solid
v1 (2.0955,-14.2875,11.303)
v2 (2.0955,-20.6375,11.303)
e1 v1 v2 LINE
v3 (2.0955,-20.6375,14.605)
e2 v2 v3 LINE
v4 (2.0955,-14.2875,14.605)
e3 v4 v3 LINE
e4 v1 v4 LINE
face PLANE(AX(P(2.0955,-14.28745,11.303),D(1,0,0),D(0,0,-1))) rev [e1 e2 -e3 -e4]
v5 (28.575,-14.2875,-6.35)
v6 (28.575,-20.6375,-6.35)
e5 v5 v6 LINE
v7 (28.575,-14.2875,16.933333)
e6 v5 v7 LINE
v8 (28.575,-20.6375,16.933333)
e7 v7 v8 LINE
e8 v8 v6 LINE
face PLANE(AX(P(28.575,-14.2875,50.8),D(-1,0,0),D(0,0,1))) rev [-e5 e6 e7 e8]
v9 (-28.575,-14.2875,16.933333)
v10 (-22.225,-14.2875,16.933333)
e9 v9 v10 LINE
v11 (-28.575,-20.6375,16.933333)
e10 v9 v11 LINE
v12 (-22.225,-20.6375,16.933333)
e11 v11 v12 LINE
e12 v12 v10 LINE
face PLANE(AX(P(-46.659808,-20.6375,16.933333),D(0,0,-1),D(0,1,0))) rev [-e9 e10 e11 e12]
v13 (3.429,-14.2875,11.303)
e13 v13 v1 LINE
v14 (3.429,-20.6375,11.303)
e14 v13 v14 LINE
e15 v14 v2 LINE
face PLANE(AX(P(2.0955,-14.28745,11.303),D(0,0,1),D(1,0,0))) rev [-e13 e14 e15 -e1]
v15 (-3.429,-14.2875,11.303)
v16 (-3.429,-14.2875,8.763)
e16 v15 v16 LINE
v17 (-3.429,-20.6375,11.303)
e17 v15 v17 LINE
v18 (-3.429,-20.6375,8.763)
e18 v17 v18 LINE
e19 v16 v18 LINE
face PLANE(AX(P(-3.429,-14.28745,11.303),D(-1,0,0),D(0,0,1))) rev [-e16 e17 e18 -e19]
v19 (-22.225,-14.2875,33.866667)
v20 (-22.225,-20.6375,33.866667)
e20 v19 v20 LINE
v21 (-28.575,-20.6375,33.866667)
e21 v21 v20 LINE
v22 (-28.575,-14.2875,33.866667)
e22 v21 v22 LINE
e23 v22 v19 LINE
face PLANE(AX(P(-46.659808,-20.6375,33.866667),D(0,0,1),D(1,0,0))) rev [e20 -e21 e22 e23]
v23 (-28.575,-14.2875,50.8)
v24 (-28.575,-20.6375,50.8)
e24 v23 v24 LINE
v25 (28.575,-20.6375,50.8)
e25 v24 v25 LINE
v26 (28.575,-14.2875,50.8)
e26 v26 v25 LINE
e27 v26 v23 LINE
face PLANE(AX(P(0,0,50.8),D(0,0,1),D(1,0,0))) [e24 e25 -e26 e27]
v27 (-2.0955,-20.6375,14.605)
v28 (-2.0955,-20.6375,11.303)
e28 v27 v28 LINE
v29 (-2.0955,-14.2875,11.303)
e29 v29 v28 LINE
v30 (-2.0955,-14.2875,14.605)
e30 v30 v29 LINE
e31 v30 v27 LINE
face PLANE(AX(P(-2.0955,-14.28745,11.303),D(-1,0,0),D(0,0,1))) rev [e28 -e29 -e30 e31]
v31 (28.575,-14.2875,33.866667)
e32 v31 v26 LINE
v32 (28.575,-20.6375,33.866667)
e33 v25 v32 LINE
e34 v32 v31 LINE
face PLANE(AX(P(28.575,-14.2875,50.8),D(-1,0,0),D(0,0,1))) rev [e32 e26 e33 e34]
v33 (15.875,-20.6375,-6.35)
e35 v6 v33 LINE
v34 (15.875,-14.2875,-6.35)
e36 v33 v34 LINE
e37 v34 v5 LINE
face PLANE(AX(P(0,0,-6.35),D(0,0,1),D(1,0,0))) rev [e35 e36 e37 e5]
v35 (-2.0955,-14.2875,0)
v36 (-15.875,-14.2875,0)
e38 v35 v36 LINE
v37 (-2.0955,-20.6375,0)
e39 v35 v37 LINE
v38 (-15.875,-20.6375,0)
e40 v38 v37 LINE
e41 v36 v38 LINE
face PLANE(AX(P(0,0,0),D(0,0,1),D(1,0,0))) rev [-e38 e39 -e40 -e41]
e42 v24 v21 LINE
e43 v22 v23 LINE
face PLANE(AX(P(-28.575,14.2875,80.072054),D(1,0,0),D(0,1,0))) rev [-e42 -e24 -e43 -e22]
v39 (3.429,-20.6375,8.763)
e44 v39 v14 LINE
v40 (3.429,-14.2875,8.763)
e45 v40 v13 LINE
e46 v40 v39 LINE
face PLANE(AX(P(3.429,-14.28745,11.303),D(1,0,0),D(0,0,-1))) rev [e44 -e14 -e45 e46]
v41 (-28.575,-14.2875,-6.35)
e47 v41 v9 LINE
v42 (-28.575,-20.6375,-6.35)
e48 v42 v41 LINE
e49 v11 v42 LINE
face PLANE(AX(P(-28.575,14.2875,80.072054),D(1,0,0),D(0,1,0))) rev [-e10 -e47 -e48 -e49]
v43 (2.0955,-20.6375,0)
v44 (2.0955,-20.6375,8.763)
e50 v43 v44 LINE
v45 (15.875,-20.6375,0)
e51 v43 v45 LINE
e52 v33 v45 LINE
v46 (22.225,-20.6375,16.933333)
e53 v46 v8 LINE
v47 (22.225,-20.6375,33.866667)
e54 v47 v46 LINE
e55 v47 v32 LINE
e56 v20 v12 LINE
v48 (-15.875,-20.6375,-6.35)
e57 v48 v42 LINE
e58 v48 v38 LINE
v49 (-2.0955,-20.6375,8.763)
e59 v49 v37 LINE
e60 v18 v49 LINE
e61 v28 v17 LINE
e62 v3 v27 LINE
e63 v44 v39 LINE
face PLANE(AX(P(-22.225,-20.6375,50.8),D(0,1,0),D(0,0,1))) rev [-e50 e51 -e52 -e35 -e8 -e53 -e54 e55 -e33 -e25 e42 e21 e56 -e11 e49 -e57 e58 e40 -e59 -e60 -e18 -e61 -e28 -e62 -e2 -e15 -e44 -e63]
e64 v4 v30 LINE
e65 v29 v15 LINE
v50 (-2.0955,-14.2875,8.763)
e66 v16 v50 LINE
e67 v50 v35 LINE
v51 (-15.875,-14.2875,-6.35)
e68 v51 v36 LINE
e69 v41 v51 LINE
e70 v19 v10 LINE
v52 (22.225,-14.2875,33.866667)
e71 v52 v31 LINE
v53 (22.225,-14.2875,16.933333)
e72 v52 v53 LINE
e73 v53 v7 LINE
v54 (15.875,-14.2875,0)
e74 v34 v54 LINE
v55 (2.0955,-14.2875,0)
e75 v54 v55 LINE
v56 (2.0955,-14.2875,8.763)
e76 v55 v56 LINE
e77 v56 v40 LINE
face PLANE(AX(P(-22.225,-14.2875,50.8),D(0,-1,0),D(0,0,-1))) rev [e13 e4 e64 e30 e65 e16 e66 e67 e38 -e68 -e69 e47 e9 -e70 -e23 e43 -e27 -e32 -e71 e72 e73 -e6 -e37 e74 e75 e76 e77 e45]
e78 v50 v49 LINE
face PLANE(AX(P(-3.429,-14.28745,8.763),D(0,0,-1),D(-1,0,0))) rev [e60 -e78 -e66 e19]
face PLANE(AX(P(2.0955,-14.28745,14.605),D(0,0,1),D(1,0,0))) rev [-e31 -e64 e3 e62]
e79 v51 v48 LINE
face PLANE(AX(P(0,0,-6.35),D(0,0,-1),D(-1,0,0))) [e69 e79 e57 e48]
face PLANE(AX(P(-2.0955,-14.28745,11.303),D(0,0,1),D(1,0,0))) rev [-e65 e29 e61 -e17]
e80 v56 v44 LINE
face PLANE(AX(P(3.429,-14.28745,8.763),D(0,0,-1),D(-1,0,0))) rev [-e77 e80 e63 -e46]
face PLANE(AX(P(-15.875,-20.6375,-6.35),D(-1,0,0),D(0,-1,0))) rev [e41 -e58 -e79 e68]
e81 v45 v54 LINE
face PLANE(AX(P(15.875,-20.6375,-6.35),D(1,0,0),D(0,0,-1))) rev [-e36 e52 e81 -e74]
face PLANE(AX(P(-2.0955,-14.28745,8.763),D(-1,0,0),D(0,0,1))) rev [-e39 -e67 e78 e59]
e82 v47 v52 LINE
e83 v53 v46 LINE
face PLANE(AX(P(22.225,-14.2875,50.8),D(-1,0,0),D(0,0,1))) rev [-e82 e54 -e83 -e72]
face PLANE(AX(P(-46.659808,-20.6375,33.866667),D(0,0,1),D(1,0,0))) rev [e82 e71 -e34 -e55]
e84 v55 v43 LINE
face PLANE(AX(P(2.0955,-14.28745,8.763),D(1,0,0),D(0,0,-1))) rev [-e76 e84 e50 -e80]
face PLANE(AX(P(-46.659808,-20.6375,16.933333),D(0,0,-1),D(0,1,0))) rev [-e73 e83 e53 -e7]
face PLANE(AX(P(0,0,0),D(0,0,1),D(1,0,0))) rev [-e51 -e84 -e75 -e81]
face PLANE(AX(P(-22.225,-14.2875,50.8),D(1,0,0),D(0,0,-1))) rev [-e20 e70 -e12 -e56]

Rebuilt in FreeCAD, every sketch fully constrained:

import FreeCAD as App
import Part
import Sketcher

V = App.Vector
Q = App.Units.Quantity

doc = App.newDocument("Part")
body = doc.addObject("PartDesign::Body", "Body")

sketch1 = body.newObject("Sketcher::SketchObject", "Sketch")
sketch1.AttachmentSupport = (doc.getObject("XY_Plane"), [""])
sketch1.MapMode = "FlatFace"
sketch1.addGeometry(Part.LineSegment(V(-22, -14, 0), V(-22, -21, 0)), False)
sketch1.addGeometry(Part.LineSegment(V(-22, -21, 0), V(22, -21, 0)), False)
sketch1.addGeometry(Part.LineSegment(V(22, -21, 0), V(22, -14, 0)), False)
sketch1.addGeometry(Part.LineSegment(V(22, -14, 0), V(-22, -14, 0)), False)
sketch1.addConstraint(Sketcher.Constraint("Coincident", 0, 2, 1, 1))
sketch1.addConstraint(Sketcher.Constraint("Coincident", 1, 2, 2, 1))
sketch1.addConstraint(Sketcher.Constraint("Coincident", 2, 2, 3, 1))
sketch1.addConstraint(Sketcher.Constraint("Coincident", 3, 2, 0, 1))
sketch1.addConstraint(Sketcher.Constraint("Vertical", 0))
sketch1.addConstraint(Sketcher.Constraint("Horizontal", 1))
sketch1.addConstraint(Sketcher.Constraint("Vertical", 2))
sketch1.addConstraint(Sketcher.Constraint("Horizontal", 3))
sketch1.addConstraint(Sketcher.Constraint("DistanceX", 1, 1, 1, 2, Q("1.75 in")))
sketch1.addConstraint(Sketcher.Constraint("DistanceY", 0, 2, 0, 1, Q("0.25 in")))
sketch1.addConstraint(Sketcher.Constraint("DistanceX", 0, 2, -1, 1, Q("0.875 in")))
sketch1.addConstraint(Sketcher.Constraint("DistanceY", 0, 2, -1, 1, Q("0.8125 in")))
pad1 = body.newObject("PartDesign::Pad", "Pad")
pad1.Profile = sketch1
pad1.Length = Q("2 in")

sketch2 = body.newObject("Sketcher::SketchObject", "Sketch001")
sketch2.AttachmentSupport = (doc.getObject("YZ_Plane"), [""])
sketch2.MapMode = "FlatFace"
sketch2.AttachmentOffset = App.Placement(V(0, 0, -0.875 * 25.4), App.Rotation())
sketch2.addGeometry(Part.LineSegment(V(-14, 34, 0), V(-21, 34, 0)), False)
sketch2.addGeometry(Part.LineSegment(V(-21, 34, 0), V(-21, 51, 0)), False)
sketch2.addGeometry(Part.LineSegment(V(-21, 51, 0), V(-14, 51, 0)), False)
sketch2.addGeometry(Part.LineSegment(V(-14, 51, 0), V(-14, 34, 0)), False)
sketch2.addGeometry(Part.LineSegment(V(-14, 0, 0), V(-21, 0, 0)), False)
sketch2.addGeometry(Part.LineSegment(V(-21, 0, 0), V(-21, 17, 0)), False)
sketch2.addGeometry(Part.LineSegment(V(-21, 17, 0), V(-14, 17, 0)), False)
sketch2.addGeometry(Part.LineSegment(V(-14, 17, 0), V(-14, 0, 0)), False)
sketch2.addConstraint(Sketcher.Constraint("Coincident", 0, 2, 1, 1))
sketch2.addConstraint(Sketcher.Constraint("Coincident", 1, 2, 2, 1))
sketch2.addConstraint(Sketcher.Constraint("Coincident", 2, 2, 3, 1))
sketch2.addConstraint(Sketcher.Constraint("Coincident", 3, 2, 0, 1))
sketch2.addConstraint(Sketcher.Constraint("Coincident", 4, 2, 5, 1))
sketch2.addConstraint(Sketcher.Constraint("Coincident", 5, 2, 6, 1))
sketch2.addConstraint(Sketcher.Constraint("Coincident", 6, 2, 7, 1))
sketch2.addConstraint(Sketcher.Constraint("Coincident", 7, 2, 4, 1))
sketch2.addConstraint(Sketcher.Constraint("Horizontal", 0))
sketch2.addConstraint(Sketcher.Constraint("Vertical", 1))
sketch2.addConstraint(Sketcher.Constraint("Horizontal", 2))
sketch2.addConstraint(Sketcher.Constraint("Vertical", 3))
sketch2.addConstraint(Sketcher.Constraint("Horizontal", 4))
sketch2.addConstraint(Sketcher.Constraint("Vertical", 5))
sketch2.addConstraint(Sketcher.Constraint("Horizontal", 6))
sketch2.addConstraint(Sketcher.Constraint("Vertical", 7))
sketch2.addConstraint(Sketcher.Constraint("PointOnObject", 4, 2, -1))
sketch2.addConstraint(Sketcher.Constraint("Vertical", 1, 2, 4, 2))
sketch2.addConstraint(Sketcher.Constraint("Vertical", 3, 2, 6, 2))
sketch2.addConstraint(Sketcher.Constraint("Equal", 3, 5))
sketch2.addConstraint(Sketcher.Constraint("DistanceY", -1, 1, 1, 2, Q("2 in")))
sketch2.addConstraint(Sketcher.Constraint("DistanceX", 0, 2, 0, 1, Q("0.25 in")))
sketch2.addConstraint(Sketcher.Constraint("DistanceX", 0, 2, -1, 1, Q("0.8125 in")))
sketch2.addConstraint(Sketcher.Constraint("DistanceY", 1, 1, 1, 2, 16.933333))
pad2 = body.newObject("PartDesign::Pad", "Pad001")
pad2.Profile = sketch2
pad2.Type = "TwoLengths"
pad2.Length = Q("0.25 in")
pad2.Length2 = Q("2 in")
pad2.Reversed = True

sketch3 = body.newObject("Sketcher::SketchObject", "Sketch002")
sketch3.AttachmentSupport = (doc.getObject("XY_Plane"), [""])
sketch3.MapMode = "FlatFace"
sketch3.addGeometry(Part.LineSegment(V(-16, -14, 0), V(-16, -21, 0)), False)
sketch3.addGeometry(Part.LineSegment(V(-16, -21, 0), V(-29, -21, 0)), False)
sketch3.addGeometry(Part.LineSegment(V(-29, -21, 0), V(-29, -14, 0)), False)
sketch3.addGeometry(Part.LineSegment(V(-29, -14, 0), V(-16, -14, 0)), False)
sketch3.addGeometry(Part.LineSegment(V(29, -14, 0), V(29, -21, 0)), False)
sketch3.addGeometry(Part.LineSegment(V(29, -21, 0), V(16, -21, 0)), False)
sketch3.addGeometry(Part.LineSegment(V(16, -21, 0), V(16, -14, 0)), False)
sketch3.addGeometry(Part.LineSegment(V(16, -14, 0), V(29, -14, 0)), False)
sketch3.addConstraint(Sketcher.Constraint("Coincident", 0, 2, 1, 1))
sketch3.addConstraint(Sketcher.Constraint("Coincident", 1, 2, 2, 1))
sketch3.addConstraint(Sketcher.Constraint("Coincident", 2, 2, 3, 1))
sketch3.addConstraint(Sketcher.Constraint("Coincident", 3, 2, 0, 1))
sketch3.addConstraint(Sketcher.Constraint("Coincident", 4, 2, 5, 1))
sketch3.addConstraint(Sketcher.Constraint("Coincident", 5, 2, 6, 1))
sketch3.addConstraint(Sketcher.Constraint("Coincident", 6, 2, 7, 1))
sketch3.addConstraint(Sketcher.Constraint("Coincident", 7, 2, 4, 1))
sketch3.addConstraint(Sketcher.Constraint("Vertical", 0))
sketch3.addConstraint(Sketcher.Constraint("Horizontal", 1))
sketch3.addConstraint(Sketcher.Constraint("Vertical", 2))
sketch3.addConstraint(Sketcher.Constraint("Horizontal", 3))
sketch3.addConstraint(Sketcher.Constraint("Vertical", 4))
sketch3.addConstraint(Sketcher.Constraint("Horizontal", 5))
sketch3.addConstraint(Sketcher.Constraint("Vertical", 6))
sketch3.addConstraint(Sketcher.Constraint("Horizontal", 7))
sketch3.addConstraint(Sketcher.Constraint("Symmetric", 1, 2, 4, 2, -2))
sketch3.addConstraint(Sketcher.Constraint("Symmetric", 3, 2, 6, 2, -2))
sketch3.addConstraint(Sketcher.Constraint("DistanceX", 1, 2, 1, 1, Q("0.5 in")))
sketch3.addConstraint(Sketcher.Constraint("DistanceY", 0, 2, 0, 1, Q("0.25 in")))
sketch3.addConstraint(Sketcher.Constraint("DistanceX", 0, 2, 4, 2, Q("1.75 in")))
sketch3.addConstraint(Sketcher.Constraint("DistanceY", 0, 2, -1, 1, Q("0.8125 in")))
pad3 = body.newObject("PartDesign::Pad", "Pad002")
pad3.Profile = sketch3
pad3.Length = Q("0.25 in")
pad3.Reversed = True

sketch4 = body.newObject("Sketcher::SketchObject", "Sketch003")
sketch4.AttachmentSupport = (doc.getObject("XZ_Plane"), [""])
sketch4.MapMode = "FlatFace"
sketch4.AttachmentOffset = App.Placement(V(0, 0, 0.8125 * 25.4), App.Rotation())
sketch4.addGeometry(Part.LineSegment(V(-2.1, 0, 0), V(2.1, 0, 0)), False)
sketch4.addGeometry(Part.LineSegment(V(2.1, 0, 0), V(2.1, 8.8, 0)), False)
sketch4.addGeometry(Part.LineSegment(V(2.1, 8.8, 0), V(3.4, 8.8, 0)), False)
sketch4.addGeometry(Part.LineSegment(V(3.4, 8.8, 0), V(3.4, 11.3, 0)), False)
sketch4.addGeometry(Part.LineSegment(V(3.4, 11.3, 0), V(2.1, 11.3, 0)), False)
sketch4.addGeometry(Part.LineSegment(V(2.1, 11.3, 0), V(2.1, 14.6, 0)), False)
sketch4.addGeometry(Part.LineSegment(V(2.1, 14.6, 0), V(-2.1, 14.6, 0)), False)
sketch4.addGeometry(Part.LineSegment(V(-2.1, 14.6, 0), V(-2.1, 11.3, 0)), False)
sketch4.addGeometry(Part.LineSegment(V(-2.1, 11.3, 0), V(-3.4, 11.3, 0)), False)
sketch4.addGeometry(Part.LineSegment(V(-3.4, 11.3, 0), V(-3.4, 8.8, 0)), False)
sketch4.addGeometry(Part.LineSegment(V(-3.4, 8.8, 0), V(-2.1, 8.8, 0)), False)
sketch4.addGeometry(Part.LineSegment(V(-2.1, 8.8, 0), V(-2.1, 0, 0)), False)
sketch4.addConstraint(Sketcher.Constraint("Coincident", 0, 2, 1, 1))
sketch4.addConstraint(Sketcher.Constraint("Coincident", 1, 2, 2, 1))
sketch4.addConstraint(Sketcher.Constraint("Coincident", 2, 2, 3, 1))
sketch4.addConstraint(Sketcher.Constraint("Coincident", 3, 2, 4, 1))
sketch4.addConstraint(Sketcher.Constraint("Coincident", 4, 2, 5, 1))
sketch4.addConstraint(Sketcher.Constraint("Coincident", 5, 2, 6, 1))
sketch4.addConstraint(Sketcher.Constraint("Coincident", 6, 2, 7, 1))
sketch4.addConstraint(Sketcher.Constraint("Coincident", 7, 2, 8, 1))
sketch4.addConstraint(Sketcher.Constraint("Coincident", 8, 2, 9, 1))
sketch4.addConstraint(Sketcher.Constraint("Coincident", 9, 2, 10, 1))
sketch4.addConstraint(Sketcher.Constraint("Coincident", 10, 2, 11, 1))
sketch4.addConstraint(Sketcher.Constraint("Coincident", 11, 2, 0, 1))
sketch4.addConstraint(Sketcher.Constraint("Horizontal", 0))
sketch4.addConstraint(Sketcher.Constraint("Vertical", 1))
sketch4.addConstraint(Sketcher.Constraint("Horizontal", 2))
sketch4.addConstraint(Sketcher.Constraint("Vertical", 3))
sketch4.addConstraint(Sketcher.Constraint("Horizontal", 4))
sketch4.addConstraint(Sketcher.Constraint("Vertical", 5))
sketch4.addConstraint(Sketcher.Constraint("Horizontal", 6))
sketch4.addConstraint(Sketcher.Constraint("Vertical", 7))
sketch4.addConstraint(Sketcher.Constraint("Horizontal", 8))
sketch4.addConstraint(Sketcher.Constraint("Vertical", 9))
sketch4.addConstraint(Sketcher.Constraint("Horizontal", 10))
sketch4.addConstraint(Sketcher.Constraint("Vertical", 11))
sketch4.addConstraint(Sketcher.Constraint("Symmetric", 0, 2, 11, 2, -1, 1))
sketch4.addConstraint(Sketcher.Constraint("Symmetric", 4, 2, 7, 2, -2))
sketch4.addConstraint(Sketcher.Constraint("Symmetric", 2, 2, 9, 2, -2))
sketch4.addConstraint(Sketcher.Constraint("Vertical", 1, 2, 4, 2))
sketch4.addConstraint(Sketcher.Constraint("DistanceY", 3, 1, 3, 2, Q("0.1 in")))
sketch4.addConstraint(Sketcher.Constraint("DistanceY", 5, 1, 5, 2, Q("0.13 in")))
sketch4.addConstraint(Sketcher.Constraint("DistanceX", 0, 1, 0, 2, Q("0.165 in")))
sketch4.addConstraint(Sketcher.Constraint("DistanceY", 1, 1, 1, 2, Q("0.345 in")))
sketch4.addConstraint(Sketcher.Constraint("DistanceX", 2, 1, 2, 2, Q("0.0525 in")))
pocket1 = body.newObject("PartDesign::Pocket", "Pocket")
pocket1.Profile = sketch4
pocket1.Type = "ThroughAll"

doc.recompute()
